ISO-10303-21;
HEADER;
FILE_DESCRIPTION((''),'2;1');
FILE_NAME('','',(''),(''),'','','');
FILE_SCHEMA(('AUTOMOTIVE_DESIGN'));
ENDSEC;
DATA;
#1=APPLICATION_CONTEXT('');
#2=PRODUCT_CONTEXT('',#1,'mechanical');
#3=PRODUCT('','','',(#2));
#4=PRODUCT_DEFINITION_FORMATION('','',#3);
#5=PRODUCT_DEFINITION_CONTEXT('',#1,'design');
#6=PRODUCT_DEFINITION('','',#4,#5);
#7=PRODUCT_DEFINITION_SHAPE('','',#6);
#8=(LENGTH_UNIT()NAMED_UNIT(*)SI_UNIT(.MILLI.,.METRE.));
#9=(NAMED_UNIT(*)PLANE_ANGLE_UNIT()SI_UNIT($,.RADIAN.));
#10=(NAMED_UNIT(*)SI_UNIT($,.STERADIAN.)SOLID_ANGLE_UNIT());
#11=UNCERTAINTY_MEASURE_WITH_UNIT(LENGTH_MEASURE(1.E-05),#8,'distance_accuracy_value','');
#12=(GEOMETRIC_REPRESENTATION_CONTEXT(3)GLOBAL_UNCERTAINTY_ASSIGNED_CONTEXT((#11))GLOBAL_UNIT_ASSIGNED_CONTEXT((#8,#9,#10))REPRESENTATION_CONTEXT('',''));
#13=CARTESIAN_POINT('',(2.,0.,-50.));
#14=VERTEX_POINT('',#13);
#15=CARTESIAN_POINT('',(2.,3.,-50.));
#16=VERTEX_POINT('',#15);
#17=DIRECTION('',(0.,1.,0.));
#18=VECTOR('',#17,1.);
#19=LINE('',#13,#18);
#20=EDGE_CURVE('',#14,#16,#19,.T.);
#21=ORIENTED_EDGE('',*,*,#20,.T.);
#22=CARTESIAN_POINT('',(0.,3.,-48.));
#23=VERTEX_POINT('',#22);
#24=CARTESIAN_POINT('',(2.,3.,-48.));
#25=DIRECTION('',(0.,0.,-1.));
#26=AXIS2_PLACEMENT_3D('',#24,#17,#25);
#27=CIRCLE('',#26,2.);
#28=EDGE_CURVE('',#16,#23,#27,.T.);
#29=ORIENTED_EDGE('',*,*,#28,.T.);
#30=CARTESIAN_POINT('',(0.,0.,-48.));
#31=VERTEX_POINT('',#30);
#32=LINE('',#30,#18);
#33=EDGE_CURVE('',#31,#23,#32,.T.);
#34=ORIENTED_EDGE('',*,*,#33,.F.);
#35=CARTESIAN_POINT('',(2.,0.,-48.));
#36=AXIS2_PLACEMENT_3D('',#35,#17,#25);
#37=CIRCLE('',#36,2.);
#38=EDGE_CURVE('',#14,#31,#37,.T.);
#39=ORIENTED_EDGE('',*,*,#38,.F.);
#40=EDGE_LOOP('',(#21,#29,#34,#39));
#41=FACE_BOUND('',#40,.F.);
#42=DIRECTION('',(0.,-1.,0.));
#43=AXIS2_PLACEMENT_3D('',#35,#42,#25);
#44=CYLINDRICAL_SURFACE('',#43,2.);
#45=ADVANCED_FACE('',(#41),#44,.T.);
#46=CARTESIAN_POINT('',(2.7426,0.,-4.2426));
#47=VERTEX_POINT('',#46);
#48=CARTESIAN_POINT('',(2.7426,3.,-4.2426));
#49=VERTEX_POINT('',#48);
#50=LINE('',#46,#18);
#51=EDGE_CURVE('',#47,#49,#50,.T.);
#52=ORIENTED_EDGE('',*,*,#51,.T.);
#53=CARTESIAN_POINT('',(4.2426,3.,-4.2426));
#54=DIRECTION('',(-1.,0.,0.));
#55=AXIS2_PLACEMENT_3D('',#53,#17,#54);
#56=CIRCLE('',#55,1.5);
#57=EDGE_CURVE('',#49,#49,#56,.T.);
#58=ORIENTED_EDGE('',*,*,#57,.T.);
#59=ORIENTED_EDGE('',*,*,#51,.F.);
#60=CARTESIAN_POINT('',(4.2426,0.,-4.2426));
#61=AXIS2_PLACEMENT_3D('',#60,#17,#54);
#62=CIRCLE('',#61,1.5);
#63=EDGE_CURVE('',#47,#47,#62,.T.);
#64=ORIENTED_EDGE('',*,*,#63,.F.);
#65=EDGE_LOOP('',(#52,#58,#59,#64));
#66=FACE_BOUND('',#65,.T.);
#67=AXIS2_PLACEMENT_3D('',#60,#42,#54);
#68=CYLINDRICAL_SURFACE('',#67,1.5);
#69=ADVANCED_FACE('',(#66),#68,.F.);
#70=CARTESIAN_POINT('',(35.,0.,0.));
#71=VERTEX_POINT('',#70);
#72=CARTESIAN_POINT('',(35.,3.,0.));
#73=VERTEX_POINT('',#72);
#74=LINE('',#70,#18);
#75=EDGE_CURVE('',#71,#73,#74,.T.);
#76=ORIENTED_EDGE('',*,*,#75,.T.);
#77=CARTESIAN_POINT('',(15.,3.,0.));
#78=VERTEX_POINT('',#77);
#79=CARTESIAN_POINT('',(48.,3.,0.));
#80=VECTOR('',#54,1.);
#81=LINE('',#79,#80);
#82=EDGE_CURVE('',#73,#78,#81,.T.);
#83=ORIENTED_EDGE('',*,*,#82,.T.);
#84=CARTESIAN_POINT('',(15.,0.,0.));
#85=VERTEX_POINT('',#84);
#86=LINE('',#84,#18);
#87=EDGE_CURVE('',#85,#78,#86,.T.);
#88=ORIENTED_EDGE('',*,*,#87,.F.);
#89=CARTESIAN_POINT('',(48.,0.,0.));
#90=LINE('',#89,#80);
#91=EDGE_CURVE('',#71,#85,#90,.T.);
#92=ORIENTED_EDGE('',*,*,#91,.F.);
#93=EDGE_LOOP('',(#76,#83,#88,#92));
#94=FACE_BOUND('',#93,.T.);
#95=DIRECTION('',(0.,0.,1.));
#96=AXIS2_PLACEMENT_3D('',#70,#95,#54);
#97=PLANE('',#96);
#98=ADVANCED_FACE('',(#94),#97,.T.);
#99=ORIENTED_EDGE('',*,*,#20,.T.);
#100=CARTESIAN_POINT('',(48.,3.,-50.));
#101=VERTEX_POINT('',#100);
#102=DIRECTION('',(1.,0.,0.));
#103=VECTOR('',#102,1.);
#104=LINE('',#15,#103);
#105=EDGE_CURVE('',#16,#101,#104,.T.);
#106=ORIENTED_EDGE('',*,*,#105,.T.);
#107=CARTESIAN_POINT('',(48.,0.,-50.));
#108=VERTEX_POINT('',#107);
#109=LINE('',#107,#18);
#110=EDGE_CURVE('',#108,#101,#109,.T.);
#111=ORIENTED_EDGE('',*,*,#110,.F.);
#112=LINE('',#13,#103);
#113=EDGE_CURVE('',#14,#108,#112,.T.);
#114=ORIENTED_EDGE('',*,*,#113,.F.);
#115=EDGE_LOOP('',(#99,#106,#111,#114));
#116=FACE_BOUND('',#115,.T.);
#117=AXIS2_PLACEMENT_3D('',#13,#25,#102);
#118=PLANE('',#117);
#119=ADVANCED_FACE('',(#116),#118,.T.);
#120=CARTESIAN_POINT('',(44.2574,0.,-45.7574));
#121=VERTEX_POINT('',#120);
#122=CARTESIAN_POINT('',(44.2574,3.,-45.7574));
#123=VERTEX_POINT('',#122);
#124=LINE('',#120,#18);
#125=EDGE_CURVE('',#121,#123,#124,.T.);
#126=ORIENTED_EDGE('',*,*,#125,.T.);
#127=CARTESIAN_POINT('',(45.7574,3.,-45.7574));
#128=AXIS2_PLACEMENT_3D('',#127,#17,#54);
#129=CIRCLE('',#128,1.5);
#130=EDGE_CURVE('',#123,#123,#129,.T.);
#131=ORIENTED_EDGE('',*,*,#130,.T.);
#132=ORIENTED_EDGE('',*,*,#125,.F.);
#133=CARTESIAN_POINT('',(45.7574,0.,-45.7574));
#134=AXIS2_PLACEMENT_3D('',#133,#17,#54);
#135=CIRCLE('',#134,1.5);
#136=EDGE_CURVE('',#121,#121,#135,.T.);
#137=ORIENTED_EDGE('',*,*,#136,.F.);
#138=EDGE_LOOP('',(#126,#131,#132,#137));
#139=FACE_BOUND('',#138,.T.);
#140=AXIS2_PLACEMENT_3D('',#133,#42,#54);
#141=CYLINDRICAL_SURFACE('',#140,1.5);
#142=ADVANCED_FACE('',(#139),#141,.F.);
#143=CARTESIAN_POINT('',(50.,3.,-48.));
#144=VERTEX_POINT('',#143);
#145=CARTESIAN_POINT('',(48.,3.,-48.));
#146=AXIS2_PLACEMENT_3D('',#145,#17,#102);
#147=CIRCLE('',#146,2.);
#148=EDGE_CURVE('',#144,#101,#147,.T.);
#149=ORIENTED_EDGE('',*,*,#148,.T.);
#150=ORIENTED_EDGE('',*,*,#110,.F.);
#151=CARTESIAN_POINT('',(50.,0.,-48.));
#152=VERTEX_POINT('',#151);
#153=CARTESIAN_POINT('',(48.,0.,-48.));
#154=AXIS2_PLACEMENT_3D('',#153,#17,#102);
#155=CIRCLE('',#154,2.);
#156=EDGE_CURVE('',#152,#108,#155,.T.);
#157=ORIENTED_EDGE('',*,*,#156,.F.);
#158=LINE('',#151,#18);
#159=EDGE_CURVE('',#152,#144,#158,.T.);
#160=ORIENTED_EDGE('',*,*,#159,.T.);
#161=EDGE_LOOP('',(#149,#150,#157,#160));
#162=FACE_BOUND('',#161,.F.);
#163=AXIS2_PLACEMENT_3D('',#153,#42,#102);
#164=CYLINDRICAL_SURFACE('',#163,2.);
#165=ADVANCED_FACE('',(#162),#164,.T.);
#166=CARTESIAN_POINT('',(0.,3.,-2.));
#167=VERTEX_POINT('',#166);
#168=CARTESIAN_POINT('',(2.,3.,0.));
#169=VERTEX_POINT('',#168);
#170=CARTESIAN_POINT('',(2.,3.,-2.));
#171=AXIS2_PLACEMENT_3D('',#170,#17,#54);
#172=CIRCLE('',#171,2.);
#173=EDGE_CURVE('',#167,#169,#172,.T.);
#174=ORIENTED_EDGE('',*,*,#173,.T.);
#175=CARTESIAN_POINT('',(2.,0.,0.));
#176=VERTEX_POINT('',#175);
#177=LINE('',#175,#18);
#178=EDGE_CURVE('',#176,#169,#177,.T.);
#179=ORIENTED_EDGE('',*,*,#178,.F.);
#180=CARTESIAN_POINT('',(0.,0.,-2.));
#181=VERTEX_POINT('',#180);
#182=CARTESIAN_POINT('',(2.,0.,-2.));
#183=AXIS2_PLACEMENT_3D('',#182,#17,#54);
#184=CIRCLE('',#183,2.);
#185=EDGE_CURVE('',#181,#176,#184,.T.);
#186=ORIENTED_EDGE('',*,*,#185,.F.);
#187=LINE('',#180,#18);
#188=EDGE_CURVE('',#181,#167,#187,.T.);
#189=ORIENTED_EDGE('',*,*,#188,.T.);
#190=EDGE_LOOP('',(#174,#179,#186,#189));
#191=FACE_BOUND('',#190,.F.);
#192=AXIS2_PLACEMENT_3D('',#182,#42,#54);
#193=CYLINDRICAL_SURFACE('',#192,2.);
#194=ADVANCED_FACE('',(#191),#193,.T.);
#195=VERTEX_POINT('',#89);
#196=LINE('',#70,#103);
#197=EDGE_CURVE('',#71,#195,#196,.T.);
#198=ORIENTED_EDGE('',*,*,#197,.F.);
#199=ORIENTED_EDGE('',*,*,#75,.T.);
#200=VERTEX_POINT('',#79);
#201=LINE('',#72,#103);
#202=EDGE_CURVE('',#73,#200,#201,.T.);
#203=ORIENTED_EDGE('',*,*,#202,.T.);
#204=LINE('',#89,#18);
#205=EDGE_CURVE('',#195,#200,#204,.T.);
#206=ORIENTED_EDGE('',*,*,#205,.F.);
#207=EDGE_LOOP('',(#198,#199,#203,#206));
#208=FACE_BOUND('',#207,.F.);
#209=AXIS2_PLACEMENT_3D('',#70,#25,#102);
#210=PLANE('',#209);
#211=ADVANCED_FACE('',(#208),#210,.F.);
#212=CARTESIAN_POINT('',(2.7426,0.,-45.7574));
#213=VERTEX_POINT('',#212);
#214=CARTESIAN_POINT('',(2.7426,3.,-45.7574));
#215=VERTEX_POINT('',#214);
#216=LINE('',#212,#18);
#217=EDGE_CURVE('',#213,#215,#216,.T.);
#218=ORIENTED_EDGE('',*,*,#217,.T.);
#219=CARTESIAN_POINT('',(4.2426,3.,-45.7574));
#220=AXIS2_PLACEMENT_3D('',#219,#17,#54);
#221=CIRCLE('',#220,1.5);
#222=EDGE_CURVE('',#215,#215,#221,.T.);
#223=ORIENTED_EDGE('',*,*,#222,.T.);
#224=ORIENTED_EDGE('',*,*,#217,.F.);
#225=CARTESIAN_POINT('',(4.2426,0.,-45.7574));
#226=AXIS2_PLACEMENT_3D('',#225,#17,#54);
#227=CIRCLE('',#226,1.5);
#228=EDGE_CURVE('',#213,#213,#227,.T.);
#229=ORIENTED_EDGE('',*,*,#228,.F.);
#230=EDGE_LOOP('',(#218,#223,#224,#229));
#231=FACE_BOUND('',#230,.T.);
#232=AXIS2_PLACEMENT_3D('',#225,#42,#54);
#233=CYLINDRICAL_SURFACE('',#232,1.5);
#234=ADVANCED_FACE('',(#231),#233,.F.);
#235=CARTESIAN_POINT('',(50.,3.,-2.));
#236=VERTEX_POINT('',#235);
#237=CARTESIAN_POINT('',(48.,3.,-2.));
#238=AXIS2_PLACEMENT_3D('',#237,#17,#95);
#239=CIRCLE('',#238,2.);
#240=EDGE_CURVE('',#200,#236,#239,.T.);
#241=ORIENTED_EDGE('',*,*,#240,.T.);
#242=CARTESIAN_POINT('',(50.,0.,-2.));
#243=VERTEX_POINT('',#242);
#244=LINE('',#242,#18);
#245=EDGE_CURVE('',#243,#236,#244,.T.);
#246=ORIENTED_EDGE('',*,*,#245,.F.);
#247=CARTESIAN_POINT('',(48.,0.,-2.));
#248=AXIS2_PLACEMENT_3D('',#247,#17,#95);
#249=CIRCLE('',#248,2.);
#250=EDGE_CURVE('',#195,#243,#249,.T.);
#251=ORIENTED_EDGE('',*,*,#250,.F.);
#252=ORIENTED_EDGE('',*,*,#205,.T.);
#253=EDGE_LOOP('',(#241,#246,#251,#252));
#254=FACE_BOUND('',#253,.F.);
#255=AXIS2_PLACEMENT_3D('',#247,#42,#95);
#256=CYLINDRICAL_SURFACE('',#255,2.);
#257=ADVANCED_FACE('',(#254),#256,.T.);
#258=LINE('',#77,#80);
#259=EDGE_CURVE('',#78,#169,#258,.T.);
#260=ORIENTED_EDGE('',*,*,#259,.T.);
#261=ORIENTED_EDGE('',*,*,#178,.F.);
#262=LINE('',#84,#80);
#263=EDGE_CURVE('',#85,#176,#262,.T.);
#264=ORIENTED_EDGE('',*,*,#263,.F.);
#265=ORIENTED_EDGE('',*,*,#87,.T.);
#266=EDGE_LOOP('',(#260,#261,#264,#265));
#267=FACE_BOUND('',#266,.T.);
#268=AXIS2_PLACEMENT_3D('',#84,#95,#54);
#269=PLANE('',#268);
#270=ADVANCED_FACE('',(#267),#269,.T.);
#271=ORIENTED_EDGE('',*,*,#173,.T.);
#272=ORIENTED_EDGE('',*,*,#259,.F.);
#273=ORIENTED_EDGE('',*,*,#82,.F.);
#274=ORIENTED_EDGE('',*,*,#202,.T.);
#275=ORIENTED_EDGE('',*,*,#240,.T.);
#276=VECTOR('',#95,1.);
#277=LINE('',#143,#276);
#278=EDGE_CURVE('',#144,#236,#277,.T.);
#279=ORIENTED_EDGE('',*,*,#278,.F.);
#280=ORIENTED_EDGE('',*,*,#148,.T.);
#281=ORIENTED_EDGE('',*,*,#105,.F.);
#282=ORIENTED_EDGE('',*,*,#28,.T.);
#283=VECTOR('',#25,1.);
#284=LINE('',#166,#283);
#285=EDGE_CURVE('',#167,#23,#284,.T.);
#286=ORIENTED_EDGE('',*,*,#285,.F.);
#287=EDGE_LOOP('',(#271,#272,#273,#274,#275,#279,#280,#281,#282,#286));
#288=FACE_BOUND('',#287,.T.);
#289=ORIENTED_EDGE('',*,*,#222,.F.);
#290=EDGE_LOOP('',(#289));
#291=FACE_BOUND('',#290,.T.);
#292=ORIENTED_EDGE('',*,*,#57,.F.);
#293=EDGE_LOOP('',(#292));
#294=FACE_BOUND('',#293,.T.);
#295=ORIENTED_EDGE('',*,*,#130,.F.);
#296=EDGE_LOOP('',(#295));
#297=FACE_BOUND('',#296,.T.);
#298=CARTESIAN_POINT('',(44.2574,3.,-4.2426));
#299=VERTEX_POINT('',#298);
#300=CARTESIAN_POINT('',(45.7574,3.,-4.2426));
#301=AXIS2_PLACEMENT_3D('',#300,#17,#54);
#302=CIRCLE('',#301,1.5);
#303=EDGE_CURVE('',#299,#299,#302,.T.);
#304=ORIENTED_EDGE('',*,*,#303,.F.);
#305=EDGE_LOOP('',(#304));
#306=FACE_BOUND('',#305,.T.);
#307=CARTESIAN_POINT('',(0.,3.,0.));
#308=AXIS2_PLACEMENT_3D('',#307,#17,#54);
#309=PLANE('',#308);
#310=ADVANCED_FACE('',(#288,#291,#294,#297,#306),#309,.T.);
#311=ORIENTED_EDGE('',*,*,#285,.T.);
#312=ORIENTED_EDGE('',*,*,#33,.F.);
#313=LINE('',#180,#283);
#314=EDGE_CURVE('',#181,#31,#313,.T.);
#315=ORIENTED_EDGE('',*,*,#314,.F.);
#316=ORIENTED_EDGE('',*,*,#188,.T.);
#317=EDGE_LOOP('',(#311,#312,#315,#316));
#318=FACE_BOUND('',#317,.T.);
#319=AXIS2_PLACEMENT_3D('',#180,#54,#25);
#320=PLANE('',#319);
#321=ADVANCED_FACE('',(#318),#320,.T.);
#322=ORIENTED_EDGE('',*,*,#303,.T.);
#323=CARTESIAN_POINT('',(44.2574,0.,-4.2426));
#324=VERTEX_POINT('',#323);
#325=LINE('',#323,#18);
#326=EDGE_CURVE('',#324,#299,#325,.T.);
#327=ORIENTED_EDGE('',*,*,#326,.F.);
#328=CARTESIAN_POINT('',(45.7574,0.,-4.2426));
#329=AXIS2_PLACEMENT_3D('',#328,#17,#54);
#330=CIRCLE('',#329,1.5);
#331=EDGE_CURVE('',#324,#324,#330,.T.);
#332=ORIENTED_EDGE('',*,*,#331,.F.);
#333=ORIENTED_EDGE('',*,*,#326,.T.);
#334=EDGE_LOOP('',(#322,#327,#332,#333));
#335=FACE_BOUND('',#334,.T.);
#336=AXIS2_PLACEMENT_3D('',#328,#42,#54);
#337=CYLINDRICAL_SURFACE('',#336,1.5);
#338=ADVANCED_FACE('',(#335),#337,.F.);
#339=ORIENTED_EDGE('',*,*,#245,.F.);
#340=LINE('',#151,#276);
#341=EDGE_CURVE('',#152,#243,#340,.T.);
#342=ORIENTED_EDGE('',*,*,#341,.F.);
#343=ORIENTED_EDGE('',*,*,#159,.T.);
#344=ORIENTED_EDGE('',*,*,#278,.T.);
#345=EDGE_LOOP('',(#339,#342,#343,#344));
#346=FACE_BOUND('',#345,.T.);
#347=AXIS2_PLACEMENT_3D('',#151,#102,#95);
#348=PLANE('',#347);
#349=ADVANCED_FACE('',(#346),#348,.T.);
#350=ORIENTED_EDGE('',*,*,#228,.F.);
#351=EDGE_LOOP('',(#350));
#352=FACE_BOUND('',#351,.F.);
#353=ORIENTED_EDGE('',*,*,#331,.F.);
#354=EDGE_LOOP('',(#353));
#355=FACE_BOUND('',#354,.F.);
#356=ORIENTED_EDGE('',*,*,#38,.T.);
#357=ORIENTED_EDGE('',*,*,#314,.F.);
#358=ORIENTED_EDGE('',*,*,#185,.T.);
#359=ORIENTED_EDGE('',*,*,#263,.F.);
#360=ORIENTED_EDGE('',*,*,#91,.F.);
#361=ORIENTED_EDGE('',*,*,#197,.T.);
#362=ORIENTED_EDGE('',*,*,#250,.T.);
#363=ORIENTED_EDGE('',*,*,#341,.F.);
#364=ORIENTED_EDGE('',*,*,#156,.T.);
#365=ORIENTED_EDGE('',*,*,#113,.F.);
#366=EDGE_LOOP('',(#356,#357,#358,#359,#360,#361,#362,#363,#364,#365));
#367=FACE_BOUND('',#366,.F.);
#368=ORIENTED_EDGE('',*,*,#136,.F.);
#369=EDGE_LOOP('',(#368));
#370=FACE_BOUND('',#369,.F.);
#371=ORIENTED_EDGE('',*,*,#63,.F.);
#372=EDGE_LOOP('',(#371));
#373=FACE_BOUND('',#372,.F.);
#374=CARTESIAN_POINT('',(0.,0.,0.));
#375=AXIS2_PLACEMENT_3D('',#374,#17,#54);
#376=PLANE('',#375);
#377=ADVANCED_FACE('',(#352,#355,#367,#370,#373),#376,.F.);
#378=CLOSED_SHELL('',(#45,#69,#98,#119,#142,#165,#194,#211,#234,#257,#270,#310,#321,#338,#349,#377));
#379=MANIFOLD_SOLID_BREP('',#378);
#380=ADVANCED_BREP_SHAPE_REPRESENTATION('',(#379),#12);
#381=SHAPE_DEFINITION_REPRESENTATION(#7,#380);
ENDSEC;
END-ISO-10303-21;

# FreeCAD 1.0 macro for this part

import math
import FreeCAD as App
import Part
import Sketcher
from FreeCAD import Vector
Q = App.Units.Quantity

doc = App.newDocument("Part")
body = doc.addObject("PartDesign::Body", "Body")

# Sketch on XZ plane
sketch1 = body.newObject("Sketcher::SketchObject", "Sketch")
sketch1.AttachmentSupport = (doc.getObject("XZ_Plane"), [""])
sketch1.MapMode = "FlatFace"
sketch1.addGeometry(Part.LineSegment(Vector(2, 0, 0), Vector(48, 0, 0)), False)
sketch1.addGeometry(Part.ArcOfCircle(Part.Circle(Vector(48, -2, 0), Vector(0, 0, 1), 2), math.radians(0), math.radians(90)), False)
sketch1.addGeometry(Part.LineSegment(Vector(50, -2, 0), Vector(50, -48, 0)), False)
sketch1.addGeometry(Part.ArcOfCircle(Part.Circle(Vector(48, -48, 0), Vector(0, 0, 1), 2), math.radians(-90), math.radians(0)), False)
sketch1.addGeometry(Part.LineSegment(Vector(48, -50, 0), Vector(2, -50, 0)), False)
sketch1.addGeometry(Part.ArcOfCircle(Part.Circle(Vector(2, -48, 0), Vector(0, 0, 1), 2), math.radians(180), math.radians(270)), False)
sketch1.addGeometry(Part.LineSegment(Vector(0, -48, 0), Vector(0, -2, 0)), False)
sketch1.addGeometry(Part.ArcOfCircle(Part.Circle(Vector(2, -2, 0), Vector(0, 0, 1), 2), math.radians(90), math.radians(180)), False)
sketch1.addGeometry(Part.Circle(Vector(45.8, -45.8, 0), Vector(0, 0, 1), 1.5), False)
sketch1.addGeometry(Part.Circle(Vector(4.2, -45.8, 0), Vector(0, 0, 1), 1.5), False)
sketch1.addGeometry(Part.Circle(Vector(45.8, -4.2, 0), Vector(0, 0, 1), 1.5), False)
sketch1.addGeometry(Part.Circle(Vector(4.2, -4.2, 0), Vector(0, 0, 1), 1.5), False)
sketch1.addConstraint(Sketcher.Constraint("Tangent", 0, 2, 1, 2))
sketch1.addConstraint(Sketcher.Constraint("Tangent", 1, 1, 2, 1))
sketch1.addConstraint(Sketcher.Constraint("Tangent", 2, 2, 3, 2))
sketch1.addConstraint(Sketcher.Constraint("Tangent", 3, 1, 4, 1))
sketch1.addConstraint(Sketcher.Constraint("Tangent", 4, 2, 5, 2))
sketch1.addConstraint(Sketcher.Constraint("Tangent", 5, 1, 6, 1))
sketch1.addConstraint(Sketcher.Constraint("Tangent", 6, 2, 7, 2))
sketch1.addConstraint(Sketcher.Constraint("Tangent", 7, 1, 0, 1))
sketch1.addConstraint(Sketcher.Constraint("Horizontal", 0))
sketch1.addConstraint(Sketcher.Constraint("Vertical", 2))
sketch1.addConstraint(Sketcher.Constraint("Horizontal", 4))
sketch1.addConstraint(Sketcher.Constraint("Vertical", 6))
sketch1.addConstraint(Sketcher.Constraint("Equal", 1, 3))
sketch1.addConstraint(Sketcher.Constraint("Equal", 3, 5))
sketch1.addConstraint(Sketcher.Constraint("Equal", 5, 7))
sketch1.addConstraint(Sketcher.Constraint("Equal", 8, 9))
sketch1.addConstraint(Sketcher.Constraint("Equal", 9, 10))
sketch1.addConstraint(Sketcher.Constraint("Equal", 10, 11))
sketch1.addConstraint(Sketcher.Constraint("PointOnObject", 0, 2, -1))
sketch1.addConstraint(Sketcher.Constraint("PointOnObject", 5, 1, -2))
sketch1.addConstraint(Sketcher.Constraint("Horizontal", 8, 3, 9, 3))
sketch1.addConstraint(Sketcher.Constraint("Horizontal", 10, 3, 11, 3))
sketch1.addConstraint(Sketcher.Constraint("Vertical", 8, 3, 10, 3))
sketch1.addConstraint(Sketcher.Constraint("Vertical", 9, 3, 11, 3))
sketch1.addConstraint(Sketcher.Constraint("Equal", 4, 2))
sketch1.addConstraint(Sketcher.Constraint("Diameter", 8, Q("3 mm")))
sketch1.addConstraint(Sketcher.Constraint("Radius", 1, Q("2 mm")))
sketch1.addConstraint(Sketcher.Constraint("DistanceX", -1, 1, 1, 1, Q("50 mm")))
sketch1.addConstraint(Sketcher.Constraint("DistanceX", -1, 1, 8, 3, Q("45.7574 mm")))
sketch1.addConstraint(Sketcher.Constraint("DistanceY", 8, 3, -1, 1, Q("45.7574 mm")))
sketch1.addConstraint(Sketcher.Constraint("DistanceX", -1, 1, 9, 3, Q("4.2426 mm")))
sketch1.addConstraint(Sketcher.Constraint("DistanceY", 10, 3, -1, 1, Q("4.2426 mm")))
pad1 = body.newObject("PartDesign::Pad", "Pad")
pad1.Profile = sketch1
pad1.Length = 3
pad1.Reversed = True

doc.recompute()
